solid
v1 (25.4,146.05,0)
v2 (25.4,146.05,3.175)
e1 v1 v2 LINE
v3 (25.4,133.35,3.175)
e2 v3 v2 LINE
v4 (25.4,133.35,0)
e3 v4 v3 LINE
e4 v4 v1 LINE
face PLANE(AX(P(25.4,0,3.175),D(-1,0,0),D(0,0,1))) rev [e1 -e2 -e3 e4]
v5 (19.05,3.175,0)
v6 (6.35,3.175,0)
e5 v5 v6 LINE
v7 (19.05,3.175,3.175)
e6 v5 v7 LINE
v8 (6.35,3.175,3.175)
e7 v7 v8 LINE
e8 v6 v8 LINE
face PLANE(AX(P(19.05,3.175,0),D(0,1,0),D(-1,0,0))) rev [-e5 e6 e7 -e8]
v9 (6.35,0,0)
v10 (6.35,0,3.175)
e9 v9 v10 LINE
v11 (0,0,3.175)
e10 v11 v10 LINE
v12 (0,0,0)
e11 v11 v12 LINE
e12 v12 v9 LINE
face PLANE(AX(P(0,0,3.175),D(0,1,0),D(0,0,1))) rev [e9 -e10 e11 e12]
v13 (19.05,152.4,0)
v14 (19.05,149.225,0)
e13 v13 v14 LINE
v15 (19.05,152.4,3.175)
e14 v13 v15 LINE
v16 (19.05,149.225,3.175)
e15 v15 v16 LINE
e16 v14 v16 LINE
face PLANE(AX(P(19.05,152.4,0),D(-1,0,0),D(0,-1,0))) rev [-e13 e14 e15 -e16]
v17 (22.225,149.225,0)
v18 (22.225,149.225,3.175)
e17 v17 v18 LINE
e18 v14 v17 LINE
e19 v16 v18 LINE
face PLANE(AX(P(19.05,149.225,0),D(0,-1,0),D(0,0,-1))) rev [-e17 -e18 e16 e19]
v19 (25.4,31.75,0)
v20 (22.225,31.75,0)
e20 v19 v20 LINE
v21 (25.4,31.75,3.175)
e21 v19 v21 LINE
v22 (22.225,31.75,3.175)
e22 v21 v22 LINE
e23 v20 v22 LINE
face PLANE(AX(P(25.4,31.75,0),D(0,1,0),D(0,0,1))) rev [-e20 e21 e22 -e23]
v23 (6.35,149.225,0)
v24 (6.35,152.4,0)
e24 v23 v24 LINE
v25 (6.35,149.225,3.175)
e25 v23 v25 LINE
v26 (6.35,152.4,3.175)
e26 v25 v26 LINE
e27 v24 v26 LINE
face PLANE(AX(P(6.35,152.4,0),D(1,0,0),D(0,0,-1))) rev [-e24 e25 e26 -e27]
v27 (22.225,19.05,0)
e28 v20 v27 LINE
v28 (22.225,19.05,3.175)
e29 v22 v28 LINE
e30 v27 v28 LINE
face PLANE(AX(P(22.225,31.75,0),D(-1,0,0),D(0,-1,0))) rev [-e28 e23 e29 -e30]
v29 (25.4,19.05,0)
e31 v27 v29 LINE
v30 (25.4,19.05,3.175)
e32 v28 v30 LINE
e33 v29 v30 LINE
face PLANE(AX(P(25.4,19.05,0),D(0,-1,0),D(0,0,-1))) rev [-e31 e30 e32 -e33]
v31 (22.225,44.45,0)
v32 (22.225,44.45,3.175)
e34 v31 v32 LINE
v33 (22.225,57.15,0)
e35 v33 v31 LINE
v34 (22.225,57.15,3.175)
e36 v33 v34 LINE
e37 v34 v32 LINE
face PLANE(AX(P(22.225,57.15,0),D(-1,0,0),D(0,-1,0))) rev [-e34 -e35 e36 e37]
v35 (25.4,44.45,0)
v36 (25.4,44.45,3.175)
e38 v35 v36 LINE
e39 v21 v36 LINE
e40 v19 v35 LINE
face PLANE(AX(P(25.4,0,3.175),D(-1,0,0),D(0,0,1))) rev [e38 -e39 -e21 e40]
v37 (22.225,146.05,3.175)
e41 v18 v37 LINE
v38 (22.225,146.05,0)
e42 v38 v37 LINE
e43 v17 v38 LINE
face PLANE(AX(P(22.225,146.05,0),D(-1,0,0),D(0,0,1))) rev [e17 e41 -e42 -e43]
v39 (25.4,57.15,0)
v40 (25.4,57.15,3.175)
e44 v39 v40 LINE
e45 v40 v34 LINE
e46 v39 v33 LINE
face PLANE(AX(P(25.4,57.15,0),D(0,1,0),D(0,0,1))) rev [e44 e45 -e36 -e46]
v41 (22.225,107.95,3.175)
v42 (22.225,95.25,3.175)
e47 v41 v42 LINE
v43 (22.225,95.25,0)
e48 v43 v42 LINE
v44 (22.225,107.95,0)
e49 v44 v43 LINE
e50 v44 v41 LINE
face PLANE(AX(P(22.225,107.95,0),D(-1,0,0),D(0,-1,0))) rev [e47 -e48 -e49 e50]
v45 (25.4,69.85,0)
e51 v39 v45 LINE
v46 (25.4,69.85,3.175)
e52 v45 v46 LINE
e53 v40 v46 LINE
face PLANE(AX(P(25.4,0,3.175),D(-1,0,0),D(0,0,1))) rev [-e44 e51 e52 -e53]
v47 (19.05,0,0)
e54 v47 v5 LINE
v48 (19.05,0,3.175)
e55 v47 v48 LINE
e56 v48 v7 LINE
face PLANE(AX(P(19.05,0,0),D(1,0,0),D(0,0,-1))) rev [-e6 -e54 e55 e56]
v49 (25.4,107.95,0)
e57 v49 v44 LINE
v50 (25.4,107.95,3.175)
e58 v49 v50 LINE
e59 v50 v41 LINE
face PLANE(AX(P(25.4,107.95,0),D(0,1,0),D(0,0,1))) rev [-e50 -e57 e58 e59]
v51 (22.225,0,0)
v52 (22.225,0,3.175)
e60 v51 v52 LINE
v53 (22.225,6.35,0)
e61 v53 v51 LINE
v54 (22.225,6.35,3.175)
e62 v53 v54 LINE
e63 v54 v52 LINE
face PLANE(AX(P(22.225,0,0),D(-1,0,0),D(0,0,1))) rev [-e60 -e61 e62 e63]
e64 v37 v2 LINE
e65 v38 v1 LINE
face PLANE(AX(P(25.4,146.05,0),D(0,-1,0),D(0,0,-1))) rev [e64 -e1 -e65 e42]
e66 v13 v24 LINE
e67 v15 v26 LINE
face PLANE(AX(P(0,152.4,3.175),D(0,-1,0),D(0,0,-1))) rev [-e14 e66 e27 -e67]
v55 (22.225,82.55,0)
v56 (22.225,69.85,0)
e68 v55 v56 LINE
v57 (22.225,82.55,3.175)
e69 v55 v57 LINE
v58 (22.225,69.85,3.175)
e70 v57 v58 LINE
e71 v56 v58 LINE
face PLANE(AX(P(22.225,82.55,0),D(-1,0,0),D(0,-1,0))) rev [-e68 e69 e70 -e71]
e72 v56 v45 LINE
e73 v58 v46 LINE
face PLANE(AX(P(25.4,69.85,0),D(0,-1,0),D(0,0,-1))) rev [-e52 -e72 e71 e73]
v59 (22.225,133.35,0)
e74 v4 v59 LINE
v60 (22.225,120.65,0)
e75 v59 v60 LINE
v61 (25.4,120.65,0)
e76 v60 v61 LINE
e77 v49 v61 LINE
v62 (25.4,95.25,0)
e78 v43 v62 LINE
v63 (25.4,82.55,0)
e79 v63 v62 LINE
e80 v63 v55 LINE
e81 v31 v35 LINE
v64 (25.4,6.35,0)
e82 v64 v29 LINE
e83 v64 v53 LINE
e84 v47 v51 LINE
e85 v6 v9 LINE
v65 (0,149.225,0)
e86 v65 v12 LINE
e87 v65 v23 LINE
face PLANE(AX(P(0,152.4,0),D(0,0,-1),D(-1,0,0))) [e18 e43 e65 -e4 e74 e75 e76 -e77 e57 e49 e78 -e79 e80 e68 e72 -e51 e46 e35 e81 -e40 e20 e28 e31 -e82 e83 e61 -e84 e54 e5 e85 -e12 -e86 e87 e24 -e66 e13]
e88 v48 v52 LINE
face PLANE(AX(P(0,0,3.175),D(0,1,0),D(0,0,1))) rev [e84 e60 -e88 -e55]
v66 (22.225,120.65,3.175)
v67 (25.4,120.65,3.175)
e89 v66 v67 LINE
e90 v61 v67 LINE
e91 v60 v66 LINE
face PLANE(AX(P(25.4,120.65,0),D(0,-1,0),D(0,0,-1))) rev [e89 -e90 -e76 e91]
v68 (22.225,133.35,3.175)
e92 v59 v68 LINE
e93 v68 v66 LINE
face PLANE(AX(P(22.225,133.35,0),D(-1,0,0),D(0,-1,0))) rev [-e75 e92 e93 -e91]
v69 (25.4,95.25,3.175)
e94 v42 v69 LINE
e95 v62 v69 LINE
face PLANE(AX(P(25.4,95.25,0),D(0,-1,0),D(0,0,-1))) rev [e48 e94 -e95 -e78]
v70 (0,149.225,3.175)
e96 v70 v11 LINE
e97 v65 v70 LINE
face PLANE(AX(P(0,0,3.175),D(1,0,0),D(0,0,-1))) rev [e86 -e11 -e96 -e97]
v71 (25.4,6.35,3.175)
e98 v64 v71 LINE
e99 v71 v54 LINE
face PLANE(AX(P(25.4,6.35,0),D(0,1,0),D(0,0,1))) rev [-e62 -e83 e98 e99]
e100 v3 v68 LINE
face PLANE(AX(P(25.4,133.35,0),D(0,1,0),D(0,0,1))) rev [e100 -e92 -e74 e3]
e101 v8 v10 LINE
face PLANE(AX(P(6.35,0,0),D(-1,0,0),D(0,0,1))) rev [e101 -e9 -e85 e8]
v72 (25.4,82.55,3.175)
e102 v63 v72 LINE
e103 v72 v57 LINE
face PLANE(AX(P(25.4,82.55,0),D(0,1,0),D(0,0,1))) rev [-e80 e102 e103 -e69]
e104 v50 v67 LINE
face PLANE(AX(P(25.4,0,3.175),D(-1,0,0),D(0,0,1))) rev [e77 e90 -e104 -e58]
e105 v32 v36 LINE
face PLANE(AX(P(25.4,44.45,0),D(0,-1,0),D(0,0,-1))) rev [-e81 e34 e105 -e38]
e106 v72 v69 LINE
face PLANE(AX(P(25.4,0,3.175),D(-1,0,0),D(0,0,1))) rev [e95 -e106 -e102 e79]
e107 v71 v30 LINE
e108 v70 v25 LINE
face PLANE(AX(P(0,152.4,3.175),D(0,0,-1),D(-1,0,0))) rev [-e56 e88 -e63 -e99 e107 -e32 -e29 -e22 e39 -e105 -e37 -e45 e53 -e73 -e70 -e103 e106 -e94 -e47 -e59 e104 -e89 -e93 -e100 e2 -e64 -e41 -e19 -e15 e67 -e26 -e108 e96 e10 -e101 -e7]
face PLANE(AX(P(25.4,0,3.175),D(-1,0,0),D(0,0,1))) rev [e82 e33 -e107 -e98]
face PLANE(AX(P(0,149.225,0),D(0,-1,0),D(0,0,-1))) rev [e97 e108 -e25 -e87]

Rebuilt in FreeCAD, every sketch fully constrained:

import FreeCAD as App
import Part
import Sketcher

V = App.Vector
Q = App.Units.Quantity

doc = App.newDocument("Part")
body = doc.addObject("PartDesign::Body", "Body")

# Sketch on XY plane
sketch1 = doc.addObject("Sketcher::SketchObject", "Sketch")
body.addObject(sketch1)
sketch1.AttachmentSupport = (doc.XY_Plane, [""])
sketch1.MapMode = "FlatFace"
sketch1.addGeometry([
    Part.LineSegment(V(0, 152, 0), V(0, 0, 0)),
    Part.LineSegment(V(0, 0, 0), V(25, 0, 0)),
    Part.LineSegment(V(25, 0, 0), V(25, 152, 0)),
    Part.LineSegment(V(25, 152, 0), V(0, 152, 0)),
], False)
sketch1.addConstraint([
    Sketcher.Constraint("Coincident", 0, 2, 1, 1),
    Sketcher.Constraint("Coincident", 1, 2, 2, 1),
    Sketcher.Constraint("Coincident", 2, 2, 3, 1),
    Sketcher.Constraint("Coincident", 3, 2, 0, 1),
    Sketcher.Constraint("Vertical", 0),
    Sketcher.Constraint("Horizontal", 1),
    Sketcher.Constraint("Vertical", 2),
    Sketcher.Constraint("Horizontal", 3),
    Sketcher.Constraint("Coincident", 0, 2, -1, 1),
    Sketcher.Constraint("DistanceX", 1, 1, 1, 2, Q("1 in")),
    Sketcher.Constraint("DistanceY", 0, 2, 0, 1, Q("6 in")),
])
pad1 = doc.addObject("PartDesign::Pad", "Pad")
body.addObject(pad1)
pad1.Profile = sketch1
pad1.Length = Q("0.125 in")

# Sketch on XY plane
sketch2 = doc.addObject("Sketcher::SketchObject", "Sketch001")
body.addObject(sketch2)
sketch2.AttachmentSupport = (doc.XY_Plane, [""])
sketch2.MapMode = "FlatFace"
sketch2.AttachmentOffset = App.Placement(V(0, 0, 0.125 * 25.4), App.Rotation())
sketch2.addGeometry([
    Part.LineSegment(V(22.2, 152.4, 0), V(22.2, 146.1, 0)),
    Part.LineSegment(V(22.2, 146.1, 0), V(25.4, 146.1, 0)),
    Part.LineSegment(V(25.4, 146.1, 0), V(25.4, 152.4, 0)),
    Part.LineSegment(V(25.4, 152.4, 0), V(22.2, 152.4, 0)),
], False)
sketch2.addConstraint([
    Sketcher.Constraint("Coincident", 0, 2, 1, 1),
    Sketcher.Constraint("Coincident", 1, 2, 2, 1),
    Sketcher.Constraint("Coincident", 2, 2, 3, 1),
    Sketcher.Constraint("Coincident", 3, 2, 0, 1),
    Sketcher.Constraint("Vertical", 0),
    Sketcher.Constraint("Horizontal", 1),
    Sketcher.Constraint("Vertical", 2),
    Sketcher.Constraint("Horizontal", 3),
    Sketcher.Constraint("DistanceX", -1, 1, 1, 2, Q("1 in")),
    Sketcher.Constraint("DistanceY", -1, 1, 2, 2, Q("6 in")),
    Sketcher.Constraint("DistanceY", 0, 2, 0, 1, Q("0.25 in")),
    Sketcher.Constraint("DistanceX", 1, 1, 1, 2, Q("0.125 in")),
])
pocket1 = doc.addObject("PartDesign::Pocket", "Pocket")
body.addObject(pocket1)
pocket1.Profile = sketch2
pocket1.Length = Q("0.125 in")
doc.recompute()

linearpattern = doc.addObject("PartDesign::LinearPattern", "LinearPattern")
body.addObject(linearpattern)
linearpattern.Originals = [pocket1]
linearpattern.Direction = (doc.Y_Axis, [""])
linearpattern.Mode = "offset"
linearpattern.Offset = Q("5.75 in")
linearpattern.Occurrences = 2
linearpattern.Reversed = True
body.Tip = linearpattern

# Sketch on XY plane
sketch3 = doc.addObject("Sketcher::SketchObject", "Sketch002")
body.addObject(sketch3)
sketch3.AttachmentSupport = (doc.XY_Plane, [""])
sketch3.MapMode = "FlatFace"
sketch3.AttachmentOffset = App.Placement(V(0, 0, 0.125 * 25.4), App.Rotation())
sketch3.addGeometry([
    Part.LineSegment(V(22.2, 133.3, 0), V(22.2, 120.7, 0)),
    Part.LineSegment(V(22.2, 120.7, 0), V(25.4, 120.7, 0)),
    Part.LineSegment(V(25.4, 120.7, 0), V(25.4, 133.3, 0)),
    Part.LineSegment(V(25.4, 133.3, 0), V(22.2, 133.3, 0)),
], False)
sketch3.addConstraint([
    Sketcher.Constraint("Coincident", 0, 2, 1, 1),
    Sketcher.Constraint("Coincident", 1, 2, 2, 1),
    Sketcher.Constraint("Coincident", 2, 2, 3, 1),
    Sketcher.Constraint("Coincident", 3, 2, 0, 1),
    Sketcher.Constraint("Vertical", 0),
    Sketcher.Constraint("Horizontal", 1),
    Sketcher.Constraint("Vertical", 2),
    Sketcher.Constraint("Horizontal", 3),
    Sketcher.Constraint("DistanceY", 0, 2, 0, 1, Q("0.5 in")),
    Sketcher.Constraint("DistanceX", -1, 1, 1, 2, Q("1 in")),
    Sketcher.Constraint("DistanceX", 1, 1, 1, 2, Q("0.125 in")),
    Sketcher.Constraint("DistanceY", -1, 1, 0, 2, Q("4.75 in")),
])
pocket2 = doc.addObject("PartDesign::Pocket", "Pocket001")
body.addObject(pocket2)
pocket2.Profile = sketch3
pocket2.Length = Q("0.125 in")
doc.recompute()

linearpattern2 = doc.addObject("PartDesign::LinearPattern", "LinearPattern001")
body.addObject(linearpattern2)
linearpattern2.Originals = [pocket2]
linearpattern2.Direction = (doc.Y_Axis, [""])
linearpattern2.Mode = "offset"
linearpattern2.Offset = Q("1 in")
linearpattern2.Occurrences = 5
linearpattern2.Reversed = True
body.Tip = linearpattern2

# Sketch on XY plane
sketch4 = doc.addObject("Sketcher::SketchObject", "Sketch003")
body.addObject(sketch4)
sketch4.AttachmentSupport = (doc.XY_Plane, [""])
sketch4.MapMode = "FlatFace"
sketch4.AttachmentOffset = App.Placement(V(0, 0, 0.125 * 25.4), App.Rotation())
sketch4.addGeometry([
    Part.LineSegment(V(6.3, 3.2, 0), V(6.3, 0, 0)),
    Part.LineSegment(V(6.3, 0, 0), V(19.1, 0, 0)),
    Part.LineSegment(V(19.1, 0, 0), V(19.1, 3.2, 0)),
    Part.LineSegment(V(19.1, 3.2, 0), V(6.3, 3.2, 0)),
], False)
sketch4.addConstraint([
    Sketcher.Constraint("Coincident", 0, 2, 1, 1),
    Sketcher.Constraint("Coincident", 1, 2, 2, 1),
    Sketcher.Constraint("Coincident", 2, 2, 3, 1),
    Sketcher.Constraint("Coincident", 3, 2, 0, 1),
    Sketcher.Constraint("Vertical", 0),
    Sketcher.Constraint("Horizontal", 1),
    Sketcher.Constraint("Vertical", 2),
    Sketcher.Constraint("Horizontal", 3),
    Sketcher.Constraint("PointOnObject", 0, 2, -1),
    Sketcher.Constraint("DistanceX", 1, 1, 1, 2, Q("0.5 in")),
    Sketcher.Constraint("DistanceY", 0, 2, 0, 1, Q("0.125 in")),
    Sketcher.Constraint("DistanceX", -1, 1, 0, 2, Q("0.25 in")),
])
pocket3 = doc.addObject("PartDesign::Pocket", "Pocket002")
body.addObject(pocket3)
pocket3.Profile = sketch4
pocket3.Length = Q("0.125 in")

# Sketch on XY plane
sketch5 = doc.addObject("Sketcher::SketchObject", "Sketch004")
body.addObject(sketch5)
sketch5.AttachmentSupport = (doc.XY_Plane, [""])
sketch5.MapMode = "FlatFace"
sketch5.AttachmentOffset = App.Placement(V(0, 0, 0.125 * 25.4), App.Rotation())
sketch5.addGeometry([
    Part.LineSegment(V(0, 152.4, 0), V(0, 149.2, 0)),
    Part.LineSegment(V(0, 149.2, 0), V(6.3, 149.2, 0)),
    Part.LineSegment(V(6.3, 149.2, 0), V(6.3, 152.4, 0)),
    Part.LineSegment(V(6.3, 152.4, 0), V(0, 152.4, 0)),
], False)
sketch5.addConstraint([
    Sketcher.Constraint("Coincident", 0, 2, 1, 1),
    Sketcher.Constraint("Coincident", 1, 2, 2, 1),
    Sketcher.Constraint("Coincident", 2, 2, 3, 1),
    Sketcher.Constraint("Coincident", 3, 2, 0, 1),
    Sketcher.Constraint("Vertical", 0),
    Sketcher.Constraint("Horizontal", 1),
    Sketcher.Constraint("Vertical", 2),
    Sketcher.Constraint("Horizontal", 3),
    Sketcher.Constraint("PointOnObject", 0, 2, -2),
    Sketcher.Constraint("DistanceY", -1, 1, 2, 2, Q("6 in")),
    Sketcher.Constraint("DistanceX", 1, 1, 1, 2, Q("0.25 in")),
    Sketcher.Constraint("DistanceY", 0, 2, 0, 1, Q("0.125 in")),
])
pocket4 = doc.addObject("PartDesign::Pocket", "Pocket003")
body.addObject(pocket4)
pocket4.Profile = sketch5
pocket4.Length = Q("0.125 in")
doc.recompute()

linearpattern3 = doc.addObject("PartDesign::LinearPattern", "LinearPattern002")
body.addObject(linearpattern3)
linearpattern3.Originals = [pocket4]
linearpattern3.Direction = (doc.X_Axis, [""])
linearpattern3.Mode = "offset"
linearpattern3.Offset = Q("0.75 in")
linearpattern3.Occurrences = 2
body.Tip = linearpattern3

doc.recompute()
